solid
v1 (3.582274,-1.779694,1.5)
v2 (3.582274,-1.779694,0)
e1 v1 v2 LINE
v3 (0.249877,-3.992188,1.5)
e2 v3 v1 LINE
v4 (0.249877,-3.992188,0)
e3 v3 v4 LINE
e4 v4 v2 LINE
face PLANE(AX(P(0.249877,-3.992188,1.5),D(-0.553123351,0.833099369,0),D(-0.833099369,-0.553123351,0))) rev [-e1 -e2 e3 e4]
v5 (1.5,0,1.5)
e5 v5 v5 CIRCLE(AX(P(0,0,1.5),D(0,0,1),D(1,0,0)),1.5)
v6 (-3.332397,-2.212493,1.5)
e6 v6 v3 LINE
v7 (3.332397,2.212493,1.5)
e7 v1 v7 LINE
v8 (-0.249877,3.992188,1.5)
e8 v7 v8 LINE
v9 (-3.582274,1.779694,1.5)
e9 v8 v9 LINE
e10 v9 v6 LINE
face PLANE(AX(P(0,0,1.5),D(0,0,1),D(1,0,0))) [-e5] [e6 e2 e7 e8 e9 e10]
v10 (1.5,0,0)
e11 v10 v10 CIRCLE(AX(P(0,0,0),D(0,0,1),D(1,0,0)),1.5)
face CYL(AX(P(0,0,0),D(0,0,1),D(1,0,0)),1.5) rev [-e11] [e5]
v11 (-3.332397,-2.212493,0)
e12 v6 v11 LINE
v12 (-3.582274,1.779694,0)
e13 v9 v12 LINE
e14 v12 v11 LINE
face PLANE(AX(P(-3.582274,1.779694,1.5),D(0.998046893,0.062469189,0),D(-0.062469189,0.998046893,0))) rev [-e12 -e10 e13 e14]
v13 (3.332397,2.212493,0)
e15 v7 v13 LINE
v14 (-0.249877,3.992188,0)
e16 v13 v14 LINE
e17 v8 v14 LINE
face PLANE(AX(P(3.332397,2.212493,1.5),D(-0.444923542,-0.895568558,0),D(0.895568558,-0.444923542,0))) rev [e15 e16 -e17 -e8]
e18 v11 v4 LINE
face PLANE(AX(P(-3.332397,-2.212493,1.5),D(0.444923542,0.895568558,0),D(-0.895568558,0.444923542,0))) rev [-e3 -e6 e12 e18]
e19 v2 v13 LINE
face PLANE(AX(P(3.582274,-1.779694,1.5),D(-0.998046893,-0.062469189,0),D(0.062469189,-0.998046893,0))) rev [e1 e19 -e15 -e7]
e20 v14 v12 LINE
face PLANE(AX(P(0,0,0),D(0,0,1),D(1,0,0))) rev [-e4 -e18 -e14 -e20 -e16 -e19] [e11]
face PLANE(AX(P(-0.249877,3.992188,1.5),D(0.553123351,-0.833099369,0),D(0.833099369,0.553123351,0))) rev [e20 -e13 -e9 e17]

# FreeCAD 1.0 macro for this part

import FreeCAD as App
import Part
import Sketcher


def add_polygon(sketch, points):
    """Adds a closed chain of lines whose ends are joined by coincident constraints."""
    first, n = sketch.GeometryCount, len(points)
    for a, b in zip(points, points[1:] + points[:1]):
        sketch.addGeometry(Part.LineSegment(App.Vector(*a, 0), App.Vector(*b, 0)), False)
    for i in range(n):
        sketch.addConstraint(Sketcher.Constraint("Coincident", first + i, 2, first + (i + 1) % n, 1))

doc = App.newDocument("Part")
body = doc.addObject("PartDesign::Body", "Body")

# Sketch on XY plane
sketch1 = body.newObject("Sketcher::SketchObject", "Sketch")
sketch1.AttachmentSupport = (doc.getObject("XY_Plane"), [""])
sketch1.MapMode = "FlatFace"
add_polygon(sketch1, [(-3.3, -2.2), (0.2, -4), (3.6, -1.8), (3.3, 2.2), (-0.2, 4), (-3.6, 1.8)])  # lines 0-5
sketch1.addConstraint([
    Sketcher.Constraint("Symmetric", 0, 2, 3, 2, -1, 1),
    Sketcher.Constraint("Symmetric", 1, 2, 4, 2, -1, 1),
    Sketcher.Constraint("Symmetric", 2, 2, 5, 2, -1, 1),
    Sketcher.Constraint("Equal", 0, 1),
    Sketcher.Constraint("Equal", 1, 2),
    Sketcher.Constraint("Distance", 0, 4.0),
    Sketcher.Constraint("DistanceY", 4, 2, 2, 2, 0.432799),
    Sketcher.Constraint("DistanceX", 0, 2, 2, 2, 3.082521),
    Sketcher.Constraint("DistanceY", 0, 2, 2, 2, 6.204681),
])
pad1 = body.newObject("PartDesign::Pad", "Pad")
pad1.Profile = sketch1
pad1.Length = 1.5

# Sketch on XY plane
sketch2 = body.newObject("Sketcher::SketchObject", "Sketch001")
sketch2.AttachmentSupport = (doc.getObject("XY_Plane"), [""])
sketch2.MapMode = "FlatFace"
sketch2.AttachmentOffset = App.Placement(App.Vector(0, 0, 1.5), App.Rotation())
sketch2.addGeometry(Part.Circle(App.Vector(0, 0, 0), App.Vector(0, 0, 1), 1.5), False)
sketch2.addConstraint([
    Sketcher.Constraint("Coincident", 0, 3, -1, 1),
    Sketcher.Constraint("Diameter", 0, 3.0),
])
pocket1 = body.newObject("PartDesign::Pocket", "Pocket")
pocket1.Profile = sketch2
pocket1.Type = "ThroughAll"

doc.recompute()
